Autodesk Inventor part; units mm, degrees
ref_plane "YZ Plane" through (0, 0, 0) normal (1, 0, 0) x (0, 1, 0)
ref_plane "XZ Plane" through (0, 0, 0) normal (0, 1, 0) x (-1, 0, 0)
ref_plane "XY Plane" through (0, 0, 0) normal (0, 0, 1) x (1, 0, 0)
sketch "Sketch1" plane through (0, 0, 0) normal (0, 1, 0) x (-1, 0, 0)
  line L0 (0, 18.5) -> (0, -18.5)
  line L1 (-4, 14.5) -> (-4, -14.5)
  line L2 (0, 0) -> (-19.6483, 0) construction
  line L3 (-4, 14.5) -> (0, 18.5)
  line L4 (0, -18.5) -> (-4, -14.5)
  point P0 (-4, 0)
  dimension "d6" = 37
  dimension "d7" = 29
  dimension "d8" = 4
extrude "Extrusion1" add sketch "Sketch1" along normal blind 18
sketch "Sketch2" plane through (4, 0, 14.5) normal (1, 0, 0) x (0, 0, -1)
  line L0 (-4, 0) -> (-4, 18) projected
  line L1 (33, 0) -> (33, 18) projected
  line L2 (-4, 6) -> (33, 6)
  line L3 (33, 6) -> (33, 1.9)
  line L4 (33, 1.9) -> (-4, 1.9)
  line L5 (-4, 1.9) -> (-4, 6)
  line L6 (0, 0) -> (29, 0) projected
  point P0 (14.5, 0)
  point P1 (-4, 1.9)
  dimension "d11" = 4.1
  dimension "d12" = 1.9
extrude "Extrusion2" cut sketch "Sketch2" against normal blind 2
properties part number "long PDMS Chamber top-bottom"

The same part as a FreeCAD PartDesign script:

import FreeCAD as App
import Part
import Sketcher

V = App.Vector
Q = App.Units.Quantity

doc = App.newDocument("Part")
body = doc.addObject("PartDesign::Body", "Body")

sketch1 = body.newObject("Sketcher::SketchObject", "Sketch")
sketch1.AttachmentSupport = (doc.getObject("XZ_Plane"), [""])
sketch1.MapMode = "FlatFace"
sketch1.addGeometry(Part.LineSegment(V(0, -18.5, 0), V(0, 18.5, 0)), False)
sketch1.addGeometry(Part.LineSegment(V(0, 18.5, 0), V(4, 14.5, 0)), False)
sketch1.addGeometry(Part.LineSegment(V(4, 14.5, 0), V(4, -14.5, 0)), False)
sketch1.addGeometry(Part.LineSegment(V(4, -14.5, 0), V(0, -18.5, 0)), False)
sketch1.addConstraint(Sketcher.Constraint("Coincident", 0, 2, 1, 1))
sketch1.addConstraint(Sketcher.Constraint("Coincident", 1, 2, 2, 1))
sketch1.addConstraint(Sketcher.Constraint("Coincident", 2, 2, 3, 1))
sketch1.addConstraint(Sketcher.Constraint("Coincident", 3, 2, 0, 1))
sketch1.addConstraint(Sketcher.Constraint("Vertical", 0))
sketch1.addConstraint(Sketcher.Constraint("Vertical", 2))
sketch1.addConstraint(Sketcher.Constraint("Symmetric", 0, 2, 3, 2, -1, 1))
sketch1.addConstraint(Sketcher.Constraint("Perpendicular", 1, 3))
sketch1.addConstraint(Sketcher.Constraint("Equal", 1, 3))
sketch1.addConstraint(Sketcher.Constraint("DistanceY", 0, 1, 0, 2, Q("37 mm")))
sketch1.addConstraint(Sketcher.Constraint("DistanceY", 2, 2, 2, 1, Q("29 mm")))
pad1 = body.newObject("PartDesign::Pad", "Pad")
pad1.Profile = sketch1
pad1.Length = 18
pad1.Reversed = True

sketch2 = body.newObject("Sketcher::SketchObject", "Sketch001")
sketch2.AttachmentSupport = (doc.getObject("YZ_Plane"), [""])
sketch2.MapMode = "FlatFace"
sketch2.AttachmentOffset = App.Placement(V(0, 0, 4), App.Rotation())
sketch2.addGeometry(Part.LineSegment(V(6, 18.5, 0), V(1.9, 18.5, 0)), False)
sketch2.addGeometry(Part.LineSegment(V(1.9, 18.5, 0), V(1.9, -18.5, 0)), False)
sketch2.addGeometry(Part.LineSegment(V(1.9, -18.5, 0), V(6, -18.5, 0)), False)
sketch2.addGeometry(Part.LineSegment(V(6, -18.5, 0), V(6, 18.5, 0)), False)
sketch2.addConstraint(Sketcher.Constraint("Coincident", 0, 2, 1, 1))
sketch2.addConstraint(Sketcher.Constraint("Coincident", 1, 2, 2, 1))
sketch2.addConstraint(Sketcher.Constraint("Coincident", 2, 2, 3, 1))
sketch2.addConstraint(Sketcher.Constraint("Coincident", 3, 2, 0, 1))
sketch2.addConstraint(Sketcher.Constraint("Horizontal", 0))
sketch2.addConstraint(Sketcher.Constraint("Vertical", 1))
sketch2.addConstraint(Sketcher.Constraint("Horizontal", 2))
sketch2.addConstraint(Sketcher.Constraint("Vertical", 3))
sketch2.addConstraint(Sketcher.Constraint("DistanceX", 0, 2, 0, 1, Q("4.1 mm")))
sketch2.addConstraint(Sketcher.Constraint("DistanceX", -1, 1, 0, 2, Q("1.9 mm")))
sketch2.addConstraint(Sketcher.Constraint("DistanceY", 1, 2, 1, 1, Q("37 mm")))
sketch2.addConstraint(Sketcher.Constraint("DistanceY", -1, 1, 0, 2, Q("18.5 mm")))
pocket1 = body.newObject("PartDesign::Pocket", "Pocket")
pocket1.Profile = sketch2
pocket1.Length = 2

doc.recompute()
